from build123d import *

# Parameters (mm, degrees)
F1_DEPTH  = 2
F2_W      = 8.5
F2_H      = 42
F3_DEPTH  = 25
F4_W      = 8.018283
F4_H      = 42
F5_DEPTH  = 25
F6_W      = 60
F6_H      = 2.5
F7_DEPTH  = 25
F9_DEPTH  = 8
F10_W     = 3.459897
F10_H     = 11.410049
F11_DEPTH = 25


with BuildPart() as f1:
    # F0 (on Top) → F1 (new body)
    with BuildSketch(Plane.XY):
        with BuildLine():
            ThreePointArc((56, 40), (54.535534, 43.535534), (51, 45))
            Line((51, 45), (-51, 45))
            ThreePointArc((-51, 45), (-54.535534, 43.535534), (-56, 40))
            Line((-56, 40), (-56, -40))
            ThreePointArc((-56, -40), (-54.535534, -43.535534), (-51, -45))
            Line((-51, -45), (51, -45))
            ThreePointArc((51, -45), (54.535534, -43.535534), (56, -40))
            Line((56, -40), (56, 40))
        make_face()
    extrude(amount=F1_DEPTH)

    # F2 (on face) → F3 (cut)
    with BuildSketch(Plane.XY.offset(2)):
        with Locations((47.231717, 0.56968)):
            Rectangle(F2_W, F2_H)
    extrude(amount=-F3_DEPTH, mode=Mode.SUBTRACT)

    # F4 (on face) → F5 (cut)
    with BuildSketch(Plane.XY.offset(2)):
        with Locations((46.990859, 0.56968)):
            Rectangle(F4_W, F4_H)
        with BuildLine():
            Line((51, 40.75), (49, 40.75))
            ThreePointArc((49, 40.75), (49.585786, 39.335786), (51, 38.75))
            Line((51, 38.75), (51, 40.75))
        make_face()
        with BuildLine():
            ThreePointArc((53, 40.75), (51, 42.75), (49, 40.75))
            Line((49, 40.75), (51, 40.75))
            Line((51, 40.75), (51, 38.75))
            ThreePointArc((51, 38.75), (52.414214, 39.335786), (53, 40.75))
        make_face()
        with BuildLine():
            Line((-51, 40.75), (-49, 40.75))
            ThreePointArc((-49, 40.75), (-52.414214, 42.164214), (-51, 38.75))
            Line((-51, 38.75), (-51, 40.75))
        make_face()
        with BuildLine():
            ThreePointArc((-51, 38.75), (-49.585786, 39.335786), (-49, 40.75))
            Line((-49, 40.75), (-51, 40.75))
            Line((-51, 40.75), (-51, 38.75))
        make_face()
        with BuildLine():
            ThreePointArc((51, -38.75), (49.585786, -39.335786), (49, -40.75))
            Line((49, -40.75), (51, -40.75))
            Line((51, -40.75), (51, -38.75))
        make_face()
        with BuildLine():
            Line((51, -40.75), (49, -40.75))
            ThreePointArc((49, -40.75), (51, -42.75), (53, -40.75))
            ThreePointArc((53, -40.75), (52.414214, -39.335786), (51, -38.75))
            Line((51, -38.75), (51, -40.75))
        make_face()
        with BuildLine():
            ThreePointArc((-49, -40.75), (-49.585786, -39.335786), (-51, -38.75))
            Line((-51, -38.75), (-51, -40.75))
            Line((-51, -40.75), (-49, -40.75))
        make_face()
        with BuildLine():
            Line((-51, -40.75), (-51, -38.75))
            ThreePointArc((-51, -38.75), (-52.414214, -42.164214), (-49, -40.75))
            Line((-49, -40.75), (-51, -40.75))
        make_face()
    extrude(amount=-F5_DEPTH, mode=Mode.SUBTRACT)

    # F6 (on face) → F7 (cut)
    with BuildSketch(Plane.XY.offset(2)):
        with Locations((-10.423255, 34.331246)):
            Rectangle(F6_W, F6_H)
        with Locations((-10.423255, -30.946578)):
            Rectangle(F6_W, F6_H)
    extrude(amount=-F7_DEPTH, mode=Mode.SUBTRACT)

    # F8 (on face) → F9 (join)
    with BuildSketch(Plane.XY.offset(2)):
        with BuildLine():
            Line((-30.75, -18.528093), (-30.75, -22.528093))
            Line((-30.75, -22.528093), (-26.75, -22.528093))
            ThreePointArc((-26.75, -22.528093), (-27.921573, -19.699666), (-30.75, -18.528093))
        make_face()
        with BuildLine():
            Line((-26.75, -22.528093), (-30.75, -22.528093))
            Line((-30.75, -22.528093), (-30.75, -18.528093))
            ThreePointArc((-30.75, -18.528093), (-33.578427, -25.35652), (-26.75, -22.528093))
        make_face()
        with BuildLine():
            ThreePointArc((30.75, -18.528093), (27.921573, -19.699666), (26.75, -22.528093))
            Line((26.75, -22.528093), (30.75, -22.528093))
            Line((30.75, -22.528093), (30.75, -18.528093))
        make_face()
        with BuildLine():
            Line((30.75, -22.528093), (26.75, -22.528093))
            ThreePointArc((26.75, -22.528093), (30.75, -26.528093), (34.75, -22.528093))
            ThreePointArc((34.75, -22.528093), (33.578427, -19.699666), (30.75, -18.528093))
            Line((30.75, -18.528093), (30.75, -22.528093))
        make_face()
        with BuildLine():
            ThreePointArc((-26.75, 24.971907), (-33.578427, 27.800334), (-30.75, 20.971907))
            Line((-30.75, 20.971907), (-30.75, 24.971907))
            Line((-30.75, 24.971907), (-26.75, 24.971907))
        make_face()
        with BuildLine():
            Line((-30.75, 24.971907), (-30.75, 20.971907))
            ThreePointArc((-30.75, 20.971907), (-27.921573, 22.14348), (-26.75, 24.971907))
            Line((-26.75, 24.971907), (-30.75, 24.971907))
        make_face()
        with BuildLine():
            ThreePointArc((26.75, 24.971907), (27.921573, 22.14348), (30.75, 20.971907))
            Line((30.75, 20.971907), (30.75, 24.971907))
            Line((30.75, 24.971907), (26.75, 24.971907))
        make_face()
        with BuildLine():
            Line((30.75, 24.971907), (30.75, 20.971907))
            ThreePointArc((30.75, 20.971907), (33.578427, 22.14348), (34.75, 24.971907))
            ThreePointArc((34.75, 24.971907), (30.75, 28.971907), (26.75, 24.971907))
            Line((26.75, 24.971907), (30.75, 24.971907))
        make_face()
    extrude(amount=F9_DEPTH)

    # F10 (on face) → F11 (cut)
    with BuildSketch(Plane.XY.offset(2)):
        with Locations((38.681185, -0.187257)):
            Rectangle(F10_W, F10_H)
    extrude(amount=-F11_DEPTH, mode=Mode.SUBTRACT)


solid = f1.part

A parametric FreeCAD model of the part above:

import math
import FreeCAD as App
import Part
import Sketcher
from FreeCAD import Vector
Q = App.Units.Quantity


def add_polygon(sketch, points):
    """Adds a closed chain of lines whose ends are joined by coincident constraints."""
    first, n = sketch.GeometryCount, len(points)
    for a, b in zip(points, points[1:] + points[:1]):
        sketch.addGeometry(Part.LineSegment(App.Vector(*a, 0), App.Vector(*b, 0)), False)
    for i in range(n):
        sketch.addConstraint(Sketcher.Constraint("Coincident", first + i, 2, first + (i + 1) % n, 1))

doc = App.newDocument("Part")
body = doc.addObject("PartDesign::Body", "Body")

# Sketch on XY plane
sketch1 = body.newObject("Sketcher::SketchObject", "Sketch")
sketch1.AttachmentSupport = (doc.getObject("XY_Plane"), [""])
sketch1.MapMode = "FlatFace"
sketch1.addGeometry(Part.ArcOfCircle(Part.Circle(Vector(51, 40, 0), Vector(0, 0, 1), 5), math.radians(-0.000004), math.radians(90.000004)), False)
sketch1.addGeometry(Part.LineSegment(Vector(51, 45, 0), Vector(-51, 45, 0)), False)
sketch1.addGeometry(Part.ArcOfCircle(Part.Circle(Vector(-51, 40, 0), Vector(0, 0, 1), 5), math.radians(89.999996), math.radians(180.000004)), False)
sketch1.addGeometry(Part.LineSegment(Vector(-56, 40, 0), Vector(-56, -40, 0)), False)
sketch1.addGeometry(Part.ArcOfCircle(Part.Circle(Vector(-51, -40, 0), Vector(0, 0, 1), 5), math.radians(179.999996), math.radians(270.000004)), False)
sketch1.addGeometry(Part.LineSegment(Vector(-51, -45, 0), Vector(51, -45, 0)), False)
sketch1.addGeometry(Part.ArcOfCircle(Part.Circle(Vector(51, -40, 0), Vector(0, 0, 1), 5), math.radians(-90.000004), math.radians(0.000004)), False)
sketch1.addGeometry(Part.LineSegment(Vector(56, -40, 0), Vector(56, 40, 0)), False)
sketch1.addConstraint(Sketcher.Constraint("Tangent", 0, 2, 1, 1))
sketch1.addConstraint(Sketcher.Constraint("Tangent", 1, 2, 2, 1))
sketch1.addConstraint(Sketcher.Constraint("Tangent", 2, 2, 3, 1))
sketch1.addConstraint(Sketcher.Constraint("Tangent", 3, 2, 4, 1))
sketch1.addConstraint(Sketcher.Constraint("Tangent", 4, 2, 5, 1))
sketch1.addConstraint(Sketcher.Constraint("Tangent", 5, 2, 6, 1))
sketch1.addConstraint(Sketcher.Constraint("Tangent", 6, 2, 7, 1))
sketch1.addConstraint(Sketcher.Constraint("Tangent", 7, 2, 0, 1))
sketch1.addConstraint(Sketcher.Constraint("Horizontal", 1))
sketch1.addConstraint(Sketcher.Constraint("Vertical", 3))
sketch1.addConstraint(Sketcher.Constraint("Horizontal", 5))
sketch1.addConstraint(Sketcher.Constraint("Vertical", 7))
sketch1.addConstraint(Sketcher.Constraint("Equal", 0, 2))
sketch1.addConstraint(Sketcher.Constraint("Equal", 2, 4))
sketch1.addConstraint(Sketcher.Constraint("Equal", 4, 6))
sketch1.addConstraint(Sketcher.Constraint("Symmetric", 0, 3, 4, 3, -1, 1))
sketch1.addConstraint(Sketcher.Constraint("Radius", 0, Q("5 mm")))
sketch1.addConstraint(Sketcher.Constraint("DistanceX", 1, 2, 1, 1, Q("102 mm")))
sketch1.addConstraint(Sketcher.Constraint("DistanceY", 3, 2, 3, 1, Q("80 mm")))
pad1 = body.newObject("PartDesign::Pad", "Pad")
pad1.Profile = sketch1
pad1.Length = 2

# Sketch on XY plane
sketch2 = body.newObject("Sketcher::SketchObject", "Sketch001")
sketch2.AttachmentSupport = (doc.getObject("XY_Plane"), [""])
sketch2.MapMode = "FlatFace"
sketch2.AttachmentOffset = App.Placement(Vector(0, 0, 2), App.Rotation())
add_polygon(sketch2, [(42.981717, 21.56968), (42.981717, -20.43032), (51.481717, -20.43032), (51.481717, 21.56968)])  # lines 0-3
sketch2.addConstraint(Sketcher.Constraint("Vertical", 0))
sketch2.addConstraint(Sketcher.Constraint("Horizontal", 1))
sketch2.addConstraint(Sketcher.Constraint("Vertical", 2))
sketch2.addConstraint(Sketcher.Constraint("Horizontal", 3))
sketch2.addConstraint(Sketcher.Constraint("DistanceY", 0, 2, 0, 1, Q("42 mm")))
sketch2.addConstraint(Sketcher.Constraint("DistanceX", 1, 1, 1, 2, Q("8.5 mm")))
sketch2.addConstraint(Sketcher.Constraint("DistanceY", 0, 2, -1, 1, Q("20.43032 mm")))
sketch2.addConstraint(Sketcher.Constraint("DistanceX", -1, 1, 0, 2, Q("42.981717 mm")))
pocket1 = body.newObject("PartDesign::Pocket", "Pocket")
pocket1.Profile = sketch2
pocket1.Length = 25

# Sketch on XY plane
sketch3 = body.newObject("Sketcher::SketchObject", "Sketch002")
sketch3.AttachmentSupport = (doc.getObject("XY_Plane"), [""])
sketch3.MapMode = "FlatFace"
sketch3.AttachmentOffset = App.Placement(Vector(0, 0, 2), App.Rotation())
add_polygon(sketch3, [(42.981718, 21.56968), (42.981718, -20.43032), (51, -20.43032), (51, 21.56968)])  # lines 0-3
sketch3.addGeometry(Part.ArcOfCircle(Part.Circle(Vector(50.999999, 40.749999, 0), Vector(0, 0, 1), 1.999999), math.radians(179.999957), math.radians(270.000043)), False)  # 4
sketch3.addGeometry(Part.ArcOfCircle(Part.Circle(Vector(51.000001, 40.749999, 0), Vector(0, 0, 1), 1.999999), math.radians(-90.000043), math.radians(0.000043)), False)  # 5
sketch3.addGeometry(Part.ArcOfCircle(Part.Circle(Vector(51, 40.75, 0), Vector(0, 0, 1), 2), math.radians(0), math.radians(180)), False)  # 6
sketch3.addGeometry(Part.ArcOfCircle(Part.Circle(Vector(-51, 40.75, 0), Vector(0, 0, 1), 2), math.radians(-0.000007), math.radians(270.000007)), False)  # 7
sketch3.addGeometry(Part.ArcOfCircle(Part.Circle(Vector(-50.999999, 40.749999, 0), Vector(0, 0, 1), 1.999999), math.radians(-90.000043), math.radians(0.000043)), False)  # 8
sketch3.addGeometry(Part.ArcOfCircle(Part.Circle(Vector(50.999999, -40.749999, 0), Vector(0, 0, 1), 1.999999), math.radians(89.999957), math.radians(180.000043)), False)  # 9
sketch3.addGeometry(Part.ArcOfCircle(Part.Circle(Vector(51, -40.75, 0), Vector(0, 0, 1), 2), math.radians(180), math.radians(360)), False)  # 10
sketch3.addGeometry(Part.ArcOfCircle(Part.Circle(Vector(51.000001, -40.749999, 0), Vector(0, 0, 1), 1.999999), math.radians(-0.000043), math.radians(90.000043)), False)  # 11
sketch3.addGeometry(Part.ArcOfCircle(Part.Circle(Vector(-50.999999, -40.749999, 0), Vector(0, 0, 1), 1.999999), math.radians(-0.000043), math.radians(90.000043)), False)  # 12
sketch3.addGeometry(Part.ArcOfCircle(Part.Circle(Vector(-51, -40.75, 0), Vector(0, 0, 1), 2), math.radians(89.999993), math.radians(360.000007)), False)  # 13
sketch3.addConstraint(Sketcher.Constraint("Tangent", 4, 2, 5, 1))
sketch3.addConstraint(Sketcher.Constraint("Tangent", 5, 2, 6, 1))
sketch3.addConstraint(Sketcher.Constraint("Tangent", 6, 2, 4, 1))
sketch3.addConstraint(Sketcher.Constraint("Tangent", 7, 1, 8, 2))
sketch3.addConstraint(Sketcher.Constraint("Coincident", 8, 1, 7, 2))
sketch3.addConstraint(Sketcher.Constraint("Tangent", 9, 2, 10, 1))
sketch3.addConstraint(Sketcher.Constraint("Tangent", 10, 2, 11, 1))
sketch3.addConstraint(Sketcher.Constraint("Tangent", 11, 2, 9, 1))
sketch3.addConstraint(Sketcher.Constraint("Tangent", 12, 1, 13, 2))
sketch3.addConstraint(Sketcher.Constraint("Coincident", 13, 1, 12, 2))
sketch3.addConstraint(Sketcher.Constraint("Vertical", 0))
sketch3.addConstraint(Sketcher.Constraint("Horizontal", 1))
sketch3.addConstraint(Sketcher.Constraint("Vertical", 2))
sketch3.addConstraint(Sketcher.Constraint("Horizontal", 3))
sketch3.addConstraint(Sketcher.Constraint("Equal", 6, 7))
sketch3.addConstraint(Sketcher.Constraint("Equal", 8, 9))
sketch3.addConstraint(Sketcher.Constraint("Equal", 11, 12))
sketch3.addConstraint(Sketcher.Constraint("Symmetric", 7, 3, 9, 3, -1, 1))
sketch3.addConstraint(Sketcher.Constraint("Symmetric", 4, 3, 12, 3, -1, 1))
sketch3.addConstraint(Sketcher.Constraint("Symmetric", 4, 3, 7, 3, -2))
sketch3.addConstraint(Sketcher.Constraint("Horizontal", 8, 3, 5, 2))
sketch3.addConstraint(Sketcher.Constraint("Horizontal", 5, 2, 6, 2))
sketch3.addConstraint(Sketcher.Constraint("Horizontal", 6, 2, 7, 1))
sketch3.addConstraint(Sketcher.Constraint("Horizontal", 13, 3, 9, 2))
sketch3.addConstraint(Sketcher.Constraint("Horizontal", 9, 2, 10, 2))
sketch3.addConstraint(Sketcher.Constraint("Horizontal", 10, 2, 12, 1))
sketch3.addConstraint(Sketcher.Constraint("Vertical", 11, 3, 1, 2))
sketch3.addConstraint(Sketcher.Constraint("Vertical", 2, 2, 4, 2))
sketch3.addConstraint(Sketcher.Constraint("Vertical", 13, 3, 8, 1))
sketch3.addConstraint(Sketcher.Constraint("Vertical", 4, 2, 11, 2))
sketch3.addConstraint(Sketcher.Constraint("Vertical", 8, 1, 13, 1))
sketch3.addConstraint(Sketcher.Constraint("Radius", 4, Q("1.999999 mm")))
sketch3.addConstraint(Sketcher.Constraint("DistanceY", 0, 2, 0, 1, Q("42 mm")))
sketch3.addConstraint(Sketcher.Constraint("DistanceX", -1, 1, 4, 3, Q("50.999999 mm")))
sketch3.addConstraint(Sketcher.Constraint("DistanceY", 9, 3, 6, 3, Q("81.499999 mm")))
sketch3.addConstraint(Sketcher.Constraint("DistanceX", 1, 1, 1, 2, Q("8.018283 mm")))
sketch3.addConstraint(Sketcher.Constraint("DistanceY", 0, 2, -1, 1, Q("20.43032 mm")))
pocket2 = body.newObject("PartDesign::Pocket", "Pocket001")
pocket2.Profile = sketch3
pocket2.Length = 25

# Sketch on XY plane
sketch4 = body.newObject("Sketcher::SketchObject", "Sketch003")
sketch4.AttachmentSupport = (doc.getObject("XY_Plane"), [""])
sketch4.MapMode = "FlatFace"
sketch4.AttachmentOffset = App.Placement(Vector(0, 0, 2), App.Rotation())
add_polygon(sketch4, [(-40.423255, 35.581246), (-40.423255, 33.081246), (19.576745, 33.081246), (19.576745, 35.581246)])  # lines 0-3
add_polygon(sketch4, [(-40.423255, -29.696578), (-40.423255, -32.196578), (19.576745, -32.196578), (19.576745, -29.696578)])  # lines 4-7
sketch4.addConstraint(Sketcher.Constraint("Vertical", 0))
sketch4.addConstraint(Sketcher.Constraint("Horizontal", 1))
sketch4.addConstraint(Sketcher.Constraint("Vertical", 2))
sketch4.addConstraint(Sketcher.Constraint("Horizontal", 3))
sketch4.addConstraint(Sketcher.Constraint("Vertical", 4))
sketch4.addConstraint(Sketcher.Constraint("Horizontal", 5))
sketch4.addConstraint(Sketcher.Constraint("Vertical", 6))
sketch4.addConstraint(Sketcher.Constraint("Horizontal", 7))
sketch4.addConstraint(Sketcher.Constraint("Vertical", 3, 2, 4, 2))
sketch4.addConstraint(Sketcher.Constraint("Vertical", 2, 2, 5, 2))
sketch4.addConstraint(Sketcher.Constraint("Equal", 2, 4))
sketch4.addConstraint(Sketcher.Constraint("DistanceX", 1, 1, 1, 2, Q("60 mm")))
sketch4.addConstraint(Sketcher.Constraint("DistanceY", 0, 2, 0, 1, Q("2.5 mm")))
sketch4.addConstraint(Sketcher.Constraint("DistanceY", 4, 2, -1, 1, Q("32.196578 mm")))
sketch4.addConstraint(Sketcher.Constraint("DistanceX", 0, 2, -1, 1, Q("40.423255 mm")))
sketch4.addConstraint(Sketcher.Constraint("DistanceY", -1, 1, 0, 2, Q("33.081246 mm")))
pocket3 = body.newObject("PartDesign::Pocket", "Pocket002")
pocket3.Profile = sketch4
pocket3.Length = 25

# Sketch on XY plane
sketch5 = body.newObject("Sketcher::SketchObject", "Sketch004")
sketch5.AttachmentSupport = (doc.getObject("XY_Plane"), [""])
sketch5.MapMode = "FlatFace"
sketch5.AttachmentOffset = App.Placement(Vector(0, 0, 2), App.Rotation())
sketch5.addGeometry(Part.ArcOfCircle(Part.Circle(Vector(-30.75, -22.528093, 0), Vector(0, 0, 1), 4), math.radians(0.000006), math.radians(89.999994)), False)
sketch5.addGeometry(Part.ArcOfCircle(Part.Circle(Vector(-30.75, -22.528093, 0), Vector(0, 0, 1), 4), math.radians(90.000001), math.radians(359.999999)), False)
sketch5.addGeometry(Part.ArcOfCircle(Part.Circle(Vector(30.75, -22.528093, 0), Vector(0, 0, 1), 4), math.radians(90.000006), math.radians(179.999994)), False)
sketch5.addGeometry(Part.ArcOfCircle(Part.Circle(Vector(30.75, -22.528093, 0), Vector(0, 0, 1), 4), math.radians(180), math.radians(360)), False)
sketch5.addGeometry(Part.ArcOfCircle(Part.Circle(Vector(30.75, -22.528093, 0), Vector(0, 0, 1), 4), math.radians(0.000006), math.radians(89.999994)), False)
sketch5.addGeometry(Part.ArcOfCircle(Part.Circle(Vector(-30.75, 24.971907, 0), Vector(0, 0, 1), 4), math.radians(0.000001), math.radians(269.999999)), False)
sketch5.addGeometry(Part.ArcOfCircle(Part.Circle(Vector(-30.75, 24.971907, 0), Vector(0, 0, 1), 4), math.radians(-89.999994), math.radians(-0.000006)), False)
sketch5.addGeometry(Part.ArcOfCircle(Part.Circle(Vector(30.75, 24.971907, 0), Vector(0, 0, 1), 4), math.radians(-179.999994), math.radians(-90.000006)), False)
sketch5.addGeometry(Part.ArcOfCircle(Part.Circle(Vector(30.75, 24.971907, 0), Vector(0, 0, 1), 4), math.radians(-89.999994), math.radians(-0.000006)), False)
sketch5.addGeometry(Part.ArcOfCircle(Part.Circle(Vector(30.75, 24.971907, 0), Vector(0, 0, 1), 4), math.radians(0), math.radians(180)), False)
sketch5.addConstraint(Sketcher.Constraint("Tangent", 0, 1, 1, 2))
sketch5.addConstraint(Sketcher.Constraint("Coincident", 1, 1, 0, 2))
sketch5.addConstraint(Sketcher.Constraint("Tangent", 2, 2, 3, 1))
sketch5.addConstraint(Sketcher.Constraint("Tangent", 3, 2, 4, 1))
sketch5.addConstraint(Sketcher.Constraint("Tangent", 4, 2, 2, 1))
sketch5.addConstraint(Sketcher.Constraint("Tangent", 5, 1, 6, 2))
sketch5.addConstraint(Sketcher.Constraint("Coincident", 6, 1, 5, 2))
sketch5.addConstraint(Sketcher.Constraint("Tangent", 7, 2, 8, 1))
sketch5.addConstraint(Sketcher.Constraint("Tangent", 8, 2, 9, 1))
sketch5.addConstraint(Sketcher.Constraint("Tangent", 9, 2, 7, 1))
sketch5.addConstraint(Sketcher.Constraint("Equal", 1, 2))
sketch5.addConstraint(Sketcher.Constraint("Equal", 4, 5))
sketch5.addConstraint(Sketcher.Constraint("Equal", 6, 7))
sketch5.addConstraint(Sketcher.Constraint("Symmetric", 0, 3, 2, 3, -2))
sketch5.addConstraint(Sketcher.Constraint("Symmetric", 5, 3, 7, 3, -2))
sketch5.addConstraint(Sketcher.Constraint("Horizontal", 4, 3, 0, 1))
sketch5.addConstraint(Sketcher.Constraint("Horizontal", 0, 1, 2, 2))
sketch5.addConstraint(Sketcher.Constraint("Horizontal", 2, 2, 3, 2))
sketch5.addConstraint(Sketcher.Constraint("Horizontal", 9, 3, 5, 1))
sketch5.addConstraint(Sketcher.Constraint("Horizontal", 5, 1, 8, 2))
sketch5.addConstraint(Sketcher.Constraint("Horizontal", 8, 2, 9, 2))
sketch5.addConstraint(Sketcher.Constraint("Vertical", 1, 3, 5, 3))
sketch5.addConstraint(Sketcher.Constraint("Vertical", 6, 3, 1, 1))
sketch5.addConstraint(Sketcher.Constraint("Vertical", 9, 3, 4, 2))
sketch5.addConstraint(Sketcher.Constraint("Vertical", 1, 1, 6, 1))
sketch5.addConstraint(Sketcher.Constraint("Vertical", 4, 2, 7, 2))
sketch5.addConstraint(Sketcher.Constraint("Radius", 0, Q("4 mm")))
sketch5.addConstraint(Sketcher.Constraint("DistanceX", 1, 3, 2, 3, Q("61.5 mm")))
sketch5.addConstraint(Sketcher.Constraint("DistanceY", 1, 3, 5, 3, Q("47.5 mm")))
sketch5.addConstraint(Sketcher.Constraint("DistanceY", 0, 3, -1, 1, Q("22.528093 mm")))
pad2 = body.newObject("PartDesign::Pad", "Pad001")
pad2.Profile = sketch5
pad2.Length = 8

# Sketch on XY plane
sketch6 = body.newObject("Sketcher::SketchObject", "Sketch005")
sketch6.AttachmentSupport = (doc.getObject("XY_Plane"), [""])
sketch6.MapMode = "FlatFace"
sketch6.AttachmentOffset = App.Placement(Vector(0, 0, 2), App.Rotation())
add_polygon(sketch6, [(36.951237, 5.517767), (36.951237, -5.892282), (40.411133, -5.892282), (40.411133, 5.517767)])  # lines 0-3
sketch6.addConstraint(Sketcher.Constraint("Vertical", 0))
sketch6.addConstraint(Sketcher.Constraint("Horizontal", 1))
sketch6.addConstraint(Sketcher.Constraint("Vertical", 2))
sketch6.addConstraint(Sketcher.Constraint("Horizontal", 3))
sketch6.addConstraint(Sketcher.Constraint("DistanceY", 0, 2, 0, 1, Q("11.410049 mm")))
sketch6.addConstraint(Sketcher.Constraint("DistanceX", 1, 1, 1, 2, Q("3.459897 mm")))
sketch6.addConstraint(Sketcher.Constraint("DistanceY", 0, 2, -1, 1, Q("5.892282 mm")))
sketch6.addConstraint(Sketcher.Constraint("DistanceX", -1, 1, 0, 2, Q("36.951237 mm")))
pocket4 = body.newObject("PartDesign::Pocket", "Pocket003")
pocket4.Profile = sketch6
pocket4.Length = 25

doc.recompute()
